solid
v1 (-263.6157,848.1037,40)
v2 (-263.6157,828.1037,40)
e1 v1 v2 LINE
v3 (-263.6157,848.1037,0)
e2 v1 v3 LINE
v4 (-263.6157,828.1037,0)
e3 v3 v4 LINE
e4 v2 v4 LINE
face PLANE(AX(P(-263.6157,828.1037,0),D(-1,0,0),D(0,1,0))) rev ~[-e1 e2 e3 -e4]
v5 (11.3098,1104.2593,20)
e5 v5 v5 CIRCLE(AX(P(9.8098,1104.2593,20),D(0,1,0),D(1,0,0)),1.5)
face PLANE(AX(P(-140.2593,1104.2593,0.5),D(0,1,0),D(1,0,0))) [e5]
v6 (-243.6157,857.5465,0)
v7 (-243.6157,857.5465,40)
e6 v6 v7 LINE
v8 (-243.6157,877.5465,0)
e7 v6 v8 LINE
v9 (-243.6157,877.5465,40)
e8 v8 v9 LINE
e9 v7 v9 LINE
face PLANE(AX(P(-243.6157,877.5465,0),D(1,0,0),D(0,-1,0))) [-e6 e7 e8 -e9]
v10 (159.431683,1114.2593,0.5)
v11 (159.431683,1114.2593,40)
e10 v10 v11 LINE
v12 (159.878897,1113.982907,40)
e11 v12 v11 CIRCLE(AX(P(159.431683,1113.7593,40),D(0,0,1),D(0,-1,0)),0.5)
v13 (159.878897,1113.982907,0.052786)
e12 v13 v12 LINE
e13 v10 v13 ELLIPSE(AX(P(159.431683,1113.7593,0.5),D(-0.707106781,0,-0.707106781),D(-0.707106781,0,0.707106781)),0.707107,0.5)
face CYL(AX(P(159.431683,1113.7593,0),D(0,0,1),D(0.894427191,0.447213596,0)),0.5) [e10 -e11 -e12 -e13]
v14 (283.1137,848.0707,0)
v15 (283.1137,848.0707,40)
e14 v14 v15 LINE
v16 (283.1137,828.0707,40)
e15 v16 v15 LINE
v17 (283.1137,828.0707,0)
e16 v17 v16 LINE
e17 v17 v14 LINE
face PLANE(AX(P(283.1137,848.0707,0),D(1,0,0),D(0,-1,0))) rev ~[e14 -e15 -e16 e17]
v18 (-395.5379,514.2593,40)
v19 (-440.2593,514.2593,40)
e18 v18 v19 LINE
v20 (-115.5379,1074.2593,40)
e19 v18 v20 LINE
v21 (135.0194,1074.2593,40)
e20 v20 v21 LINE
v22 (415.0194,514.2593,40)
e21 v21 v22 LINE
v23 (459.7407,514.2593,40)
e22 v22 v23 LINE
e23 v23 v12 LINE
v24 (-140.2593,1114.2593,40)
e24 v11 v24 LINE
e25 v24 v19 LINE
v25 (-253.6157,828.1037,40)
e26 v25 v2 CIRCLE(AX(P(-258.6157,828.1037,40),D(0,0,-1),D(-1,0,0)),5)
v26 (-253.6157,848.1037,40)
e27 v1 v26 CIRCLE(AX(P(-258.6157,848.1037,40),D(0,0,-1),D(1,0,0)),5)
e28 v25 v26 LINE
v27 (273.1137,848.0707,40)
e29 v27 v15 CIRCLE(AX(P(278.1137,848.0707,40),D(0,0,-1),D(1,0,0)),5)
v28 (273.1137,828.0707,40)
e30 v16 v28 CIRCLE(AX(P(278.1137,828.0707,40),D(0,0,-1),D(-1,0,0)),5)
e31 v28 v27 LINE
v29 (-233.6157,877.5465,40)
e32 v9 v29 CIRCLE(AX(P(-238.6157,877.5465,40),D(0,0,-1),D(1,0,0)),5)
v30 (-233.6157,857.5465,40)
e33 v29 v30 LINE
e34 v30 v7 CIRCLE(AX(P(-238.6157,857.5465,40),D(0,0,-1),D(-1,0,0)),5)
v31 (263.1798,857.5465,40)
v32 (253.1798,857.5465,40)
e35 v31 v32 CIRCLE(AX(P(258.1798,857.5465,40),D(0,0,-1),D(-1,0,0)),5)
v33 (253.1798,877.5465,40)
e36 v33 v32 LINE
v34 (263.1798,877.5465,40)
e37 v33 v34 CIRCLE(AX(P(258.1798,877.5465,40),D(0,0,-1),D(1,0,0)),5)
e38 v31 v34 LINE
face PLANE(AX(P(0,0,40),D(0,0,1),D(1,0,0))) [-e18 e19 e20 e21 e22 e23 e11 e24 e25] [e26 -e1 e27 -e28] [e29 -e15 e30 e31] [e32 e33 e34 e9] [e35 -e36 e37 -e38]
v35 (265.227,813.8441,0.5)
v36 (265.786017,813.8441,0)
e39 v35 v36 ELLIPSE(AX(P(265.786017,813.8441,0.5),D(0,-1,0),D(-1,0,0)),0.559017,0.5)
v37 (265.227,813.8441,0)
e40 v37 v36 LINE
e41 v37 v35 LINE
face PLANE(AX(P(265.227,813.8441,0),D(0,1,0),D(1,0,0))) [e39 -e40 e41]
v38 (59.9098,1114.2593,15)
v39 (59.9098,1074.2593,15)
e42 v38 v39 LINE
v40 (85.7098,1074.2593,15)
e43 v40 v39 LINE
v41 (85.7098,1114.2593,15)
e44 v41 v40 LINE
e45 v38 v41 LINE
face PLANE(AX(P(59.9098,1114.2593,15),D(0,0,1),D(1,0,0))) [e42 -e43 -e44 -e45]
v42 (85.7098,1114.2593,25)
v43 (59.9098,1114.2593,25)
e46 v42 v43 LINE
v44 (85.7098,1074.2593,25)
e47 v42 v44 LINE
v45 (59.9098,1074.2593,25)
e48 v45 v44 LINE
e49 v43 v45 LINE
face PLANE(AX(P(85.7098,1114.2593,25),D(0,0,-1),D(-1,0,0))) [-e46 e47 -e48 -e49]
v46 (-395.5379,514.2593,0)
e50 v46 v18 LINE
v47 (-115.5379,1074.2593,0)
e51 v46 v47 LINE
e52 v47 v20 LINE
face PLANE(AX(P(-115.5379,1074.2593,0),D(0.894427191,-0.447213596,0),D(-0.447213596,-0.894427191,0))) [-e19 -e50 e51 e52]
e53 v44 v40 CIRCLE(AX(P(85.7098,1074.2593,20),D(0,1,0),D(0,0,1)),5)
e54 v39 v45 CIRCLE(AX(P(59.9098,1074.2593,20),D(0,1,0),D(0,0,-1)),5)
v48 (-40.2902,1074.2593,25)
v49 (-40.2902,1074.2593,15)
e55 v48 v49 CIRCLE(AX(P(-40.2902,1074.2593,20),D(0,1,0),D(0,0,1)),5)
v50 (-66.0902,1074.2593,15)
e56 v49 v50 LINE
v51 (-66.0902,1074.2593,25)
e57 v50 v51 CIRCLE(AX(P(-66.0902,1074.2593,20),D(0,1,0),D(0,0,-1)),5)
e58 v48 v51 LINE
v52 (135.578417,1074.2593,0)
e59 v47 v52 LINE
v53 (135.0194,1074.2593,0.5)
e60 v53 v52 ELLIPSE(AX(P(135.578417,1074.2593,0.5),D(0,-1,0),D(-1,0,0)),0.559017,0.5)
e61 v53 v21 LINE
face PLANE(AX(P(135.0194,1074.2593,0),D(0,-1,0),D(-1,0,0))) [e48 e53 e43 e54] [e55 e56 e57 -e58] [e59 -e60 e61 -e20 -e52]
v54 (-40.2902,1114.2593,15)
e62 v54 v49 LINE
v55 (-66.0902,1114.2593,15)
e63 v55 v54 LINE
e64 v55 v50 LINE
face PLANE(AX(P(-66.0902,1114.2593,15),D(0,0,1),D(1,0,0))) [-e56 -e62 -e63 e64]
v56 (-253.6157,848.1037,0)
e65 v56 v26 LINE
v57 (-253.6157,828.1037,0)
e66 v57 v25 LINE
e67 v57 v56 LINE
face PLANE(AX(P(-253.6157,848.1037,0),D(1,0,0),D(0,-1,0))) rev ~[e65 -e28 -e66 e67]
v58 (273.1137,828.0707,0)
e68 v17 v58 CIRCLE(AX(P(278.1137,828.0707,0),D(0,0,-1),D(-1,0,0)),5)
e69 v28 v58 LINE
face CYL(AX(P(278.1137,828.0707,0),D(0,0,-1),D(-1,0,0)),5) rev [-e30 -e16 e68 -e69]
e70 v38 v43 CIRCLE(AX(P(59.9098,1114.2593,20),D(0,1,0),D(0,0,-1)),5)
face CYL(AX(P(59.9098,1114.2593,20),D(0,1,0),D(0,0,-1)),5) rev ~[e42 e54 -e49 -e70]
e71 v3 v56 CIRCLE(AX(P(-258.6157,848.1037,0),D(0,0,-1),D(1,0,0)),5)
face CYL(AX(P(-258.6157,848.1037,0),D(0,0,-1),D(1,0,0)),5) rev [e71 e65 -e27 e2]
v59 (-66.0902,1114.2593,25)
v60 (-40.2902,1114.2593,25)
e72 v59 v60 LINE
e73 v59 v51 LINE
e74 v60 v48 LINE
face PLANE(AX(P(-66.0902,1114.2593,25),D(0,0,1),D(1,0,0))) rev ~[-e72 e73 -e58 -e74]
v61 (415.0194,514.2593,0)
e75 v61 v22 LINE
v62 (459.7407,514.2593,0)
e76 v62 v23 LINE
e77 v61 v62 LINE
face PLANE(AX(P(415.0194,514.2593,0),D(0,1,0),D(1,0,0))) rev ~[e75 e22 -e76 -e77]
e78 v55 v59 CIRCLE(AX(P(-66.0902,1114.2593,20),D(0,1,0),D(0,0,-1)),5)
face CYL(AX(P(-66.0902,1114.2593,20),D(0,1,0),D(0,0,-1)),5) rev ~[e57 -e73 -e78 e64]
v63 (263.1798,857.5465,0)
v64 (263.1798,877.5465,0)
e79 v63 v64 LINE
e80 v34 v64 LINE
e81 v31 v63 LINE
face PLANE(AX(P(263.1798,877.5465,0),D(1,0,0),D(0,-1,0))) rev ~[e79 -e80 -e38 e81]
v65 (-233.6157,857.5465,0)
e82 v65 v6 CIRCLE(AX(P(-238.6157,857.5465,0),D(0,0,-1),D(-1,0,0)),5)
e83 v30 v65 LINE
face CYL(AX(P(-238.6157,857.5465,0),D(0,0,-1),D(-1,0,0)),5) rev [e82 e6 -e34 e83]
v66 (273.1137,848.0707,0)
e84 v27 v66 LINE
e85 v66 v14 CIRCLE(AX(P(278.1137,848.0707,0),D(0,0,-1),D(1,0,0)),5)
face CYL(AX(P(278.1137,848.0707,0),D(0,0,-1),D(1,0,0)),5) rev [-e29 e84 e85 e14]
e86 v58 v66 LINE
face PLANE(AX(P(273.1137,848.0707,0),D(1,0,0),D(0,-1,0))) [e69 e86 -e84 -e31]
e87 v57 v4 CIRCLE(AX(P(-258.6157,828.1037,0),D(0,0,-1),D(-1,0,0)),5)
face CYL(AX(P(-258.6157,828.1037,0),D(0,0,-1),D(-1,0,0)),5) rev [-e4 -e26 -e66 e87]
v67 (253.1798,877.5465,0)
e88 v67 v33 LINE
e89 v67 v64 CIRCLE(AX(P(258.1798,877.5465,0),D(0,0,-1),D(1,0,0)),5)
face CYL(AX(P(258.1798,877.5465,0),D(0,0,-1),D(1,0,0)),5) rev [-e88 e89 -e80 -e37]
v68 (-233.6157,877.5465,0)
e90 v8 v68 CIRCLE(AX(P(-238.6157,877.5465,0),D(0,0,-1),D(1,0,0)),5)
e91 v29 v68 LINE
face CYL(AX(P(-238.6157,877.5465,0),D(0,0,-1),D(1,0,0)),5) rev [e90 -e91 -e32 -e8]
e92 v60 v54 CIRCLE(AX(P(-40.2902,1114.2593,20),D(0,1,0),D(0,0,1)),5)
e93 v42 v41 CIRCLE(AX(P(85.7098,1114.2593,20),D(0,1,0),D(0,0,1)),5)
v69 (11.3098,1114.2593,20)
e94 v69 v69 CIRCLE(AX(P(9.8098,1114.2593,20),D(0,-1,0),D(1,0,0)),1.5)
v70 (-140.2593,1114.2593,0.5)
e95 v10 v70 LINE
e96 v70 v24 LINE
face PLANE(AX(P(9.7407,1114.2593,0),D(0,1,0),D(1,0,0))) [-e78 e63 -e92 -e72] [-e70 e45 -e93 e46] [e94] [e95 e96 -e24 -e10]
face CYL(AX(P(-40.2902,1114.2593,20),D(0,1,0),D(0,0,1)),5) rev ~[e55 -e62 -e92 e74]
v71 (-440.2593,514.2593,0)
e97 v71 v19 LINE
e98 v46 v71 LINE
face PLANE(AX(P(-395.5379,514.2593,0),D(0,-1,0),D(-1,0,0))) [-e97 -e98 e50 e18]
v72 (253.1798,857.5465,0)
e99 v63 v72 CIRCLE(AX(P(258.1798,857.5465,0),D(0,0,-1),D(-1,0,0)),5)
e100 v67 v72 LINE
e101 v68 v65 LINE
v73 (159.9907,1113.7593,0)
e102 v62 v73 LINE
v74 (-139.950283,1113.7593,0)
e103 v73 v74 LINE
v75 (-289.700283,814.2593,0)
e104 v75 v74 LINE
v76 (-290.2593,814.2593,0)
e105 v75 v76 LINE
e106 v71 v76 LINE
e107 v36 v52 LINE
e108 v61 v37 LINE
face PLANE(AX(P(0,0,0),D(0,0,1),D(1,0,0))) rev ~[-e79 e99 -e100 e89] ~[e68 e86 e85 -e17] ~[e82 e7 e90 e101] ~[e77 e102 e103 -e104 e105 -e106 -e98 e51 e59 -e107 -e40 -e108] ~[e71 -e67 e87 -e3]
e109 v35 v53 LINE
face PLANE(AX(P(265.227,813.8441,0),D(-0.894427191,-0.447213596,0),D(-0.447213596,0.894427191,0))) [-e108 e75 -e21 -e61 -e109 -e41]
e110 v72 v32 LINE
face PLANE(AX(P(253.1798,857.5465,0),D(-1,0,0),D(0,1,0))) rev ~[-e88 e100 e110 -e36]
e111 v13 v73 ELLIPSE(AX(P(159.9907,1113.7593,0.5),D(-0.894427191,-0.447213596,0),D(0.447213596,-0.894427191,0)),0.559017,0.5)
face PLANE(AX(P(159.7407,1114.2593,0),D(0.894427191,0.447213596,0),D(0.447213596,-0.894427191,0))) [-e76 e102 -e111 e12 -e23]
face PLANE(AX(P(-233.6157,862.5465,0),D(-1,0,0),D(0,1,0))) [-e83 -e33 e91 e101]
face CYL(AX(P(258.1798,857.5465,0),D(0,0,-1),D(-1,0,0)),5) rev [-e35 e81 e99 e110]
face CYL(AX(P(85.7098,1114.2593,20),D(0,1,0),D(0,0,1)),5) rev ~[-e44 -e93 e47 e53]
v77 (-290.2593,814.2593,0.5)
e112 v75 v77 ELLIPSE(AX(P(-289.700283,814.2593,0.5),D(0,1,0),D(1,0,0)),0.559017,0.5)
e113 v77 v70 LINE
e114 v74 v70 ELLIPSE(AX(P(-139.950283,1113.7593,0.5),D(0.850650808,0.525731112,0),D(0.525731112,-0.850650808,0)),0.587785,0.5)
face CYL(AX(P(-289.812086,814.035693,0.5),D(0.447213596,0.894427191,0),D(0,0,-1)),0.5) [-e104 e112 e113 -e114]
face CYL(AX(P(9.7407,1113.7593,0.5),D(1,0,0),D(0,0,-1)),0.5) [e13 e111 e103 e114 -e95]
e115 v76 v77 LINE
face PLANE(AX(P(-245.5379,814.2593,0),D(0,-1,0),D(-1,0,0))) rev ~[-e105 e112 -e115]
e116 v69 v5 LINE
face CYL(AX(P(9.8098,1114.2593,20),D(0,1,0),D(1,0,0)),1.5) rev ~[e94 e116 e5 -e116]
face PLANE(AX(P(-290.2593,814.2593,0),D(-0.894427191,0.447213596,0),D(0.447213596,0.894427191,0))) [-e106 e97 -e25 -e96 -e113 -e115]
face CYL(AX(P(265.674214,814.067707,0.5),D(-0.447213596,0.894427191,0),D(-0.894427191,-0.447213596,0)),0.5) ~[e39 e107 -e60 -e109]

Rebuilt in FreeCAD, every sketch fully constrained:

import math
import FreeCAD as App
import Part
import Sketcher
from FreeCAD import Vector
Q = App.Units.Quantity


def edges_at(feature, points):
    """Names of the edges that pass closest to the given points."""
    edges = feature.Shape.Edges
    near = lambda p: min(range(len(edges)), key=lambda i: edges[i].distToShape(Part.Vertex(*p))[0])
    return sorted({f"Edge{near(p) + 1}" for p in points})

doc = App.newDocument("Part")
params = doc.addObject("Spreadsheet::Sheet", "Params")
for row, (alias, value) in enumerate([
    ("sketch1_width", "300 mm"),
    ("pad1_length", "40 mm"),
    ("fillet_radius", "0.5 mm"),
    ("fillet2_radius", "0.5 mm"),
    ("sketch2_diameter", "3 mm"),
    ("pocket1_length", "10 mm"),
    ("pad2_length", "40 mm"),
    ("sketch4_radius", "5 mm"),
    ("sketch4_width", "25.8 mm"),
    ("pocket2_length", "50 mm"),
    ("sketch5_radius", "5 mm"),
    ("sketch5_height", "20 mm"),
    ("pocket3_length", "1000 mm"),
], start=1):
    params.set(f"A{row}", alias)
    params.set(f"B{row}", "=" + value)
    params.setAlias(f"B{row}", alias)

body = doc.addObject("PartDesign::Body", "Body")

# Sketch on XY plane
sketch1 = body.newObject("Sketcher::SketchObject", "Sketch")
sketch1.AttachmentSupport = (doc.getObject("XY_Plane"), [""])
sketch1.MapMode = "FlatFace"
sketch1.addGeometry([
    Part.LineSegment(Vector(160, 1114, 0), Vector(-140, 1114, 0)),  # 0
    Part.LineSegment(Vector(-140, 1114, 0), Vector(-290, 814, 0)),  # 1
    Part.LineSegment(Vector(-290, 814, 0), Vector(-246, 814, 0)),  # 2
    Part.LineSegment(Vector(-246, 814, 0), Vector(-116, 1074, 0)),  # 3
    Part.LineSegment(Vector(-116, 1074, 0), Vector(135, 1074, 0)),  # 4
    Part.LineSegment(Vector(135, 1074, 0), Vector(265, 814, 0)),  # 5
    Part.LineSegment(Vector(265, 814, 0), Vector(310, 814, 0)),  # 6
    Part.LineSegment(Vector(310, 814, 0), Vector(160, 1114, 0)),  # 7
], False)
sketch1.addConstraint([
    Sketcher.Constraint("Coincident", 0, 2, 1, 1),
    Sketcher.Constraint("Coincident", 1, 2, 2, 1),
    Sketcher.Constraint("Coincident", 2, 2, 3, 1),
    Sketcher.Constraint("Coincident", 3, 2, 4, 1),
    Sketcher.Constraint("Coincident", 4, 2, 5, 1),
    Sketcher.Constraint("Coincident", 5, 2, 6, 1),
    Sketcher.Constraint("Coincident", 6, 2, 7, 1),
    Sketcher.Constraint("Coincident", 7, 2, 0, 1),
    Sketcher.Constraint("Horizontal", 0),
    Sketcher.Constraint("Horizontal", 2),
    Sketcher.Constraint("Horizontal", 4),
    Sketcher.Constraint("Horizontal", 6),
    Sketcher.Constraint("Parallel", 1, 3),
    Sketcher.Constraint("Parallel", 5, 7),
    Sketcher.Constraint("Equal", 2, 6),
    Sketcher.Constraint("DistanceX", 0, 2, 0, 1, Q("300 mm")),
    Sketcher.Constraint("DistanceY", 1, 2, 0, 2, Q("300 mm")),
    Sketcher.Constraint("DistanceX", 1, 2, 0, 2, Q("150 mm")),
    Sketcher.Constraint("DistanceY", 3, 2, 0, 2, Q("40 mm")),
    Sketcher.Constraint("Distance", 5, Q("291.153 mm")),
    Sketcher.Constraint("DistanceX", 2, 1, 2, 2, Q("44.7214 mm")),
    Sketcher.Constraint("DistanceX", 4, 1, 4, 2, Q("250.5573 mm")),
    Sketcher.Constraint("DistanceX", 2, 2, -1, 1, Q("245.538 mm")),
    Sketcher.Constraint("DistanceY", -1, 1, 5, 2, Q("813.844 mm")),
])
sketch1.setExpression("Constraints[15]", "Params.sketch1_width")
pad1 = body.newObject("PartDesign::Pad", "Pad")
pad1.Profile = sketch1
pad1.setExpression("Length", "Params.pad1_length")
doc.recompute()

fillet = body.newObject("PartDesign::Fillet", "Fillet")
fillet.Base = (pad1, edges_at(pad1, [(200.123, 944.052, 0)]))
fillet.setExpression("Radius", "Params.fillet_radius")
doc.recompute()

fillet2 = body.newObject("PartDesign::Fillet", "Fillet001")
fillet2.Base = (fillet, edges_at(fillet, [(159.741, 1114.259, 20), (84.741, 1114.259, 0), (-215.259, 964.259, 0)]))
fillet2.setExpression("Radius", "Params.fillet2_radius")

# Sketch on XZ plane
sketch2 = body.newObject("Sketcher::SketchObject", "Sketch001")
sketch2.AttachmentSupport = (doc.getObject("XZ_Plane"), [""])
sketch2.MapMode = "FlatFace"
sketch2.AttachmentOffset = App.Placement(Vector(0, 0, -1114.2593), App.Rotation())
sketch2.addGeometry(Part.Circle(Vector(9.8, 20, 0), Vector(0, 0, 1), 1.5), False)
sketch2.addConstraint([
    Sketcher.Constraint("Diameter", 0, Q("3 mm")),
    Sketcher.Constraint("DistanceY", -1, 1, 0, 3, Q("20 mm")),
    Sketcher.Constraint("DistanceX", -1, 1, 0, 3, Q("9.8098 mm")),
])
sketch2.setExpression("Constraints[0]", "Params.sketch2_diameter")
pocket1 = body.newObject("PartDesign::Pocket", "Pocket")
pocket1.Profile = sketch2
pocket1.setExpression("Length", "Params.pocket1_length")
pocket1.Reversed = True

# Sketch on XY plane
sketch3 = body.newObject("Sketcher::SketchObject", "Sketch002")
sketch3.AttachmentSupport = (doc.getObject("XY_Plane"), [""])
sketch3.MapMode = "FlatFace"
sketch3.addGeometry([
    Part.LineSegment(Vector(460, 514, 0), Vector(310, 814, 0)),  # 0
    Part.LineSegment(Vector(310, 814, 0), Vector(265, 814, 0)),  # 1
    Part.LineSegment(Vector(265, 814, 0), Vector(415, 514, 0)),  # 2
    Part.LineSegment(Vector(415, 514, 0), Vector(460, 514, 0)),  # 3
    Part.LineSegment(Vector(-246, 814, 0), Vector(-290, 814, 0)),  # 4
    Part.LineSegment(Vector(-290, 814, 0), Vector(-440, 514, 0)),  # 5
    Part.LineSegment(Vector(-440, 514, 0), Vector(-396, 514, 0)),  # 6
    Part.LineSegment(Vector(-396, 514, 0), Vector(-246, 814, 0)),  # 7
], False)
sketch3.addConstraint([
    Sketcher.Constraint("Coincident", 0, 2, 1, 1),
    Sketcher.Constraint("Coincident", 1, 2, 2, 1),
    Sketcher.Constraint("Coincident", 2, 2, 3, 1),
    Sketcher.Constraint("Coincident", 3, 2, 0, 1),
    Sketcher.Constraint("Coincident", 4, 2, 5, 1),
    Sketcher.Constraint("Coincident", 5, 2, 6, 1),
    Sketcher.Constraint("Coincident", 6, 2, 7, 1),
    Sketcher.Constraint("Coincident", 7, 2, 4, 1),
    Sketcher.Constraint("Horizontal", 1),
    Sketcher.Constraint("Horizontal", 3),
    Sketcher.Constraint("Horizontal", 4),
    Sketcher.Constraint("Horizontal", 6),
    Sketcher.Constraint("Parallel", 0, 2),
    Sketcher.Constraint("Parallel", 5, 7),
    Sketcher.Constraint("Horizontal", 3, 2, 5, 2),
    Sketcher.Constraint("Equal", 3, 4),
    Sketcher.Constraint("DistanceY", 2, 2, 4, 2, Q("300 mm")),
    Sketcher.Constraint("DistanceX", 4, 2, 3, 2, Q("750 mm")),
    Sketcher.Constraint("DistanceX", 5, 2, 4, 2, Q("150 mm")),
    Sketcher.Constraint("Distance", 0, Q("334.946 mm")),
    Sketcher.Constraint("DistanceX", 1, 2, 1, 1, Q("44.7213 mm")),
    Sketcher.Constraint("DistanceY", -1, 1, 0, 2, Q("813.844 mm")),
    Sketcher.Constraint("DistanceX", -1, 1, 1, 2, Q("265.227 mm")),
    Sketcher.Constraint("DistanceX", 6, 2, -1, 1, Q("395.538 mm")),
])
pad2 = body.newObject("PartDesign::Pad", "Pad001")
pad2.Profile = sketch3
pad2.setExpression("Length", "Params.pad2_length")

# Sketch on XZ plane
sketch4 = body.newObject("Sketcher::SketchObject", "Sketch003")
sketch4.AttachmentSupport = (doc.getObject("XZ_Plane"), [""])
sketch4.MapMode = "FlatFace"
sketch4.AttachmentOffset = App.Placement(Vector(0, 0, -1114.2593), App.Rotation())
sketch4.addGeometry([
    Part.LineSegment(Vector(86, 15, 0), Vector(60, 15, 0)),  # 0
    Part.ArcOfCircle(Part.Circle(Vector(60, 20, 0), Vector(0, 0, 1), 5), math.radians(90), math.radians(270)),  # 1
    Part.LineSegment(Vector(60, 25, 0), Vector(86, 25, 0)),  # 2
    Part.ArcOfCircle(Part.Circle(Vector(86, 20, 0), Vector(0, 0, 1), 5), math.radians(-90), math.radians(90)),  # 3
    Part.LineSegment(Vector(-40, 15, 0), Vector(-66, 15, 0)),  # 4
    Part.ArcOfCircle(Part.Circle(Vector(-66, 20, 0), Vector(0, 0, 1), 5), math.radians(90), math.radians(270)),  # 5
    Part.LineSegment(Vector(-66, 25, 0), Vector(-40, 25, 0)),  # 6
    Part.ArcOfCircle(Part.Circle(Vector(-40, 20, 0), Vector(0, 0, 1), 5), math.radians(-90), math.radians(90)),  # 7
], False)
sketch4.addConstraint([
    Sketcher.Constraint("Tangent", 0, 2, 1, 2),
    Sketcher.Constraint("Tangent", 1, 1, 2, 1),
    Sketcher.Constraint("Tangent", 2, 2, 3, 2),
    Sketcher.Constraint("Tangent", 3, 1, 0, 1),
    Sketcher.Constraint("Tangent", 4, 2, 5, 2),
    Sketcher.Constraint("Tangent", 5, 1, 6, 1),
    Sketcher.Constraint("Tangent", 6, 2, 7, 2),
    Sketcher.Constraint("Tangent", 7, 1, 4, 1),
    Sketcher.Constraint("Horizontal", 0),
    Sketcher.Constraint("Horizontal", 2),
    Sketcher.Constraint("Horizontal", 4),
    Sketcher.Constraint("Horizontal", 6),
    Sketcher.Constraint("Equal", 3, 5),
    Sketcher.Constraint("Horizontal", 3, 3, 5, 3),
    Sketcher.Constraint("Equal", 2, 4),
    Sketcher.Constraint("Radius", 1, Q("5 mm")),
    Sketcher.Constraint("DistanceX", 0, 2, 0, 1, Q("25.8 mm")),
    Sketcher.Constraint("DistanceY", -1, 1, 1, 3, Q("20 mm")),
    Sketcher.Constraint("DistanceX", 5, 3, 1, 3, Q("126 mm")),
    Sketcher.Constraint("DistanceX", -1, 1, 1, 3, Q("59.9098 mm")),
])
sketch4.setExpression("Constraints[15]", "Params.sketch4_radius")
sketch4.setExpression("Constraints[16]", "Params.sketch4_width")
pocket2 = body.newObject("PartDesign::Pocket", "Pocket001")
pocket2.Profile = sketch4
pocket2.setExpression("Length", "Params.pocket2_length")
pocket2.Reversed = True

# Sketch on XY plane
sketch5 = body.newObject("Sketcher::SketchObject", "Sketch004")
sketch5.AttachmentSupport = (doc.getObject("XY_Plane"), [""])
sketch5.MapMode = "FlatFace"
sketch5.addGeometry([
    Part.ArcOfCircle(Part.Circle(Vector(278, 828, 0), Vector(0, 0, 1), 5), math.radians(180), math.radians(360)),  # 0
    Part.LineSegment(Vector(283, 828, 0), Vector(283, 848, 0)),  # 1
    Part.ArcOfCircle(Part.Circle(Vector(278, 848, 0), Vector(0, 0, 1), 5), math.radians(0), math.radians(180)),  # 2
    Part.LineSegment(Vector(273, 848, 0), Vector(273, 828, 0)),  # 3
    Part.ArcOfCircle(Part.Circle(Vector(258, 878, 0), Vector(0, 0, 1), 5), math.radians(0), math.radians(180)),  # 4
    Part.LineSegment(Vector(253, 878, 0), Vector(253, 858, 0)),  # 5
    Part.ArcOfCircle(Part.Circle(Vector(258, 858, 0), Vector(0, 0, 1), 5), math.radians(180), math.radians(360)),  # 6
    Part.LineSegment(Vector(263, 858, 0), Vector(263, 878, 0)),  # 7
    Part.ArcOfCircle(Part.Circle(Vector(-259, 828, 0), Vector(0, 0, 1), 5), math.radians(180), math.radians(360)),  # 8
    Part.LineSegment(Vector(-254, 828, 0), Vector(-254, 848, 0)),  # 9
    Part.ArcOfCircle(Part.Circle(Vector(-259, 848, 0), Vector(0, 0, 1), 5), math.radians(0), math.radians(180)),  # 10
    Part.LineSegment(Vector(-264, 848, 0), Vector(-264, 828, 0)),  # 11
    Part.ArcOfCircle(Part.Circle(Vector(-239, 878, 0), Vector(0, 0, 1), 5), math.radians(0), math.radians(180)),  # 12
    Part.LineSegment(Vector(-244, 878, 0), Vector(-244, 858, 0)),  # 13
    Part.ArcOfCircle(Part.Circle(Vector(-239, 858, 0), Vector(0, 0, 1), 5), math.radians(180), math.radians(360)),  # 14
    Part.LineSegment(Vector(-234, 858, 0), Vector(-234, 878, 0)),  # 15
], False)
sketch5.addConstraint([
    Sketcher.Constraint("Tangent", 0, 2, 1, 1),
    Sketcher.Constraint("Tangent", 1, 2, 2, 1),
    Sketcher.Constraint("Tangent", 2, 2, 3, 1),
    Sketcher.Constraint("Tangent", 3, 2, 0, 1),
    Sketcher.Constraint("Tangent", 4, 2, 5, 1),
    Sketcher.Constraint("Tangent", 5, 2, 6, 1),
    Sketcher.Constraint("Tangent", 6, 2, 7, 1),
    Sketcher.Constraint("Tangent", 7, 2, 4, 1),
    Sketcher.Constraint("Tangent", 8, 2, 9, 1),
    Sketcher.Constraint("Tangent", 9, 2, 10, 1),
    Sketcher.Constraint("Tangent", 10, 2, 11, 1),
    Sketcher.Constraint("Tangent", 11, 2, 8, 1),
    Sketcher.Constraint("Tangent", 12, 2, 13, 1),
    Sketcher.Constraint("Tangent", 13, 2, 14, 1),
    Sketcher.Constraint("Tangent", 14, 2, 15, 1),
    Sketcher.Constraint("Tangent", 15, 2, 12, 1),
    Sketcher.Constraint("Vertical", 1),
    Sketcher.Constraint("Vertical", 3),
    Sketcher.Constraint("Vertical", 5),
    Sketcher.Constraint("Vertical", 7),
    Sketcher.Constraint("Vertical", 9),
    Sketcher.Constraint("Vertical", 11),
    Sketcher.Constraint("Vertical", 13),
    Sketcher.Constraint("Vertical", 15),
    Sketcher.Constraint("Equal", 2, 4),
    Sketcher.Constraint("Equal", 6, 8),
    Sketcher.Constraint("Equal", 10, 12),
    Sketcher.Constraint("Horizontal", 4, 3, 12, 3),
    Sketcher.Constraint("Horizontal", 6, 3, 14, 3),
    Sketcher.Constraint("Equal", 3, 5),
    Sketcher.Constraint("Equal", 7, 9),
    Sketcher.Constraint("Radius", 0, Q("5 mm")),
    Sketcher.Constraint("DistanceY", 1, 1, 1, 2, Q("20 mm")),
    Sketcher.Constraint("DistanceX", 10, 3, 12, 3, Q("20 mm")),
    Sketcher.Constraint("DistanceX", 4, 3, 2, 3, Q("19.934 mm")),
    Sketcher.Constraint("DistanceY", 0, 3, 8, 3, Q("0.033 mm")),
    Sketcher.Constraint("DistanceX", -1, 1, 0, 3, Q("278.1137 mm")),
    Sketcher.Constraint("DistanceY", -1, 1, 0, 3, Q("828.0707 mm")),
    Sketcher.Constraint("DistanceY", -1, 1, 4, 3, Q("877.5465 mm")),
    Sketcher.Constraint("DistanceX", 8, 3, -1, 1, Q("258.6157 mm")),
])
sketch5.setExpression("Constraints[31]", "Params.sketch5_radius")
sketch5.setExpression("Constraints[32]", "Params.sketch5_height")
pocket3 = body.newObject("PartDesign::Pocket", "Pocket002")
pocket3.Profile = sketch5
pocket3.setExpression("Length", "Params.pocket3_length")
pocket3.Midplane = True

doc.recompute()
